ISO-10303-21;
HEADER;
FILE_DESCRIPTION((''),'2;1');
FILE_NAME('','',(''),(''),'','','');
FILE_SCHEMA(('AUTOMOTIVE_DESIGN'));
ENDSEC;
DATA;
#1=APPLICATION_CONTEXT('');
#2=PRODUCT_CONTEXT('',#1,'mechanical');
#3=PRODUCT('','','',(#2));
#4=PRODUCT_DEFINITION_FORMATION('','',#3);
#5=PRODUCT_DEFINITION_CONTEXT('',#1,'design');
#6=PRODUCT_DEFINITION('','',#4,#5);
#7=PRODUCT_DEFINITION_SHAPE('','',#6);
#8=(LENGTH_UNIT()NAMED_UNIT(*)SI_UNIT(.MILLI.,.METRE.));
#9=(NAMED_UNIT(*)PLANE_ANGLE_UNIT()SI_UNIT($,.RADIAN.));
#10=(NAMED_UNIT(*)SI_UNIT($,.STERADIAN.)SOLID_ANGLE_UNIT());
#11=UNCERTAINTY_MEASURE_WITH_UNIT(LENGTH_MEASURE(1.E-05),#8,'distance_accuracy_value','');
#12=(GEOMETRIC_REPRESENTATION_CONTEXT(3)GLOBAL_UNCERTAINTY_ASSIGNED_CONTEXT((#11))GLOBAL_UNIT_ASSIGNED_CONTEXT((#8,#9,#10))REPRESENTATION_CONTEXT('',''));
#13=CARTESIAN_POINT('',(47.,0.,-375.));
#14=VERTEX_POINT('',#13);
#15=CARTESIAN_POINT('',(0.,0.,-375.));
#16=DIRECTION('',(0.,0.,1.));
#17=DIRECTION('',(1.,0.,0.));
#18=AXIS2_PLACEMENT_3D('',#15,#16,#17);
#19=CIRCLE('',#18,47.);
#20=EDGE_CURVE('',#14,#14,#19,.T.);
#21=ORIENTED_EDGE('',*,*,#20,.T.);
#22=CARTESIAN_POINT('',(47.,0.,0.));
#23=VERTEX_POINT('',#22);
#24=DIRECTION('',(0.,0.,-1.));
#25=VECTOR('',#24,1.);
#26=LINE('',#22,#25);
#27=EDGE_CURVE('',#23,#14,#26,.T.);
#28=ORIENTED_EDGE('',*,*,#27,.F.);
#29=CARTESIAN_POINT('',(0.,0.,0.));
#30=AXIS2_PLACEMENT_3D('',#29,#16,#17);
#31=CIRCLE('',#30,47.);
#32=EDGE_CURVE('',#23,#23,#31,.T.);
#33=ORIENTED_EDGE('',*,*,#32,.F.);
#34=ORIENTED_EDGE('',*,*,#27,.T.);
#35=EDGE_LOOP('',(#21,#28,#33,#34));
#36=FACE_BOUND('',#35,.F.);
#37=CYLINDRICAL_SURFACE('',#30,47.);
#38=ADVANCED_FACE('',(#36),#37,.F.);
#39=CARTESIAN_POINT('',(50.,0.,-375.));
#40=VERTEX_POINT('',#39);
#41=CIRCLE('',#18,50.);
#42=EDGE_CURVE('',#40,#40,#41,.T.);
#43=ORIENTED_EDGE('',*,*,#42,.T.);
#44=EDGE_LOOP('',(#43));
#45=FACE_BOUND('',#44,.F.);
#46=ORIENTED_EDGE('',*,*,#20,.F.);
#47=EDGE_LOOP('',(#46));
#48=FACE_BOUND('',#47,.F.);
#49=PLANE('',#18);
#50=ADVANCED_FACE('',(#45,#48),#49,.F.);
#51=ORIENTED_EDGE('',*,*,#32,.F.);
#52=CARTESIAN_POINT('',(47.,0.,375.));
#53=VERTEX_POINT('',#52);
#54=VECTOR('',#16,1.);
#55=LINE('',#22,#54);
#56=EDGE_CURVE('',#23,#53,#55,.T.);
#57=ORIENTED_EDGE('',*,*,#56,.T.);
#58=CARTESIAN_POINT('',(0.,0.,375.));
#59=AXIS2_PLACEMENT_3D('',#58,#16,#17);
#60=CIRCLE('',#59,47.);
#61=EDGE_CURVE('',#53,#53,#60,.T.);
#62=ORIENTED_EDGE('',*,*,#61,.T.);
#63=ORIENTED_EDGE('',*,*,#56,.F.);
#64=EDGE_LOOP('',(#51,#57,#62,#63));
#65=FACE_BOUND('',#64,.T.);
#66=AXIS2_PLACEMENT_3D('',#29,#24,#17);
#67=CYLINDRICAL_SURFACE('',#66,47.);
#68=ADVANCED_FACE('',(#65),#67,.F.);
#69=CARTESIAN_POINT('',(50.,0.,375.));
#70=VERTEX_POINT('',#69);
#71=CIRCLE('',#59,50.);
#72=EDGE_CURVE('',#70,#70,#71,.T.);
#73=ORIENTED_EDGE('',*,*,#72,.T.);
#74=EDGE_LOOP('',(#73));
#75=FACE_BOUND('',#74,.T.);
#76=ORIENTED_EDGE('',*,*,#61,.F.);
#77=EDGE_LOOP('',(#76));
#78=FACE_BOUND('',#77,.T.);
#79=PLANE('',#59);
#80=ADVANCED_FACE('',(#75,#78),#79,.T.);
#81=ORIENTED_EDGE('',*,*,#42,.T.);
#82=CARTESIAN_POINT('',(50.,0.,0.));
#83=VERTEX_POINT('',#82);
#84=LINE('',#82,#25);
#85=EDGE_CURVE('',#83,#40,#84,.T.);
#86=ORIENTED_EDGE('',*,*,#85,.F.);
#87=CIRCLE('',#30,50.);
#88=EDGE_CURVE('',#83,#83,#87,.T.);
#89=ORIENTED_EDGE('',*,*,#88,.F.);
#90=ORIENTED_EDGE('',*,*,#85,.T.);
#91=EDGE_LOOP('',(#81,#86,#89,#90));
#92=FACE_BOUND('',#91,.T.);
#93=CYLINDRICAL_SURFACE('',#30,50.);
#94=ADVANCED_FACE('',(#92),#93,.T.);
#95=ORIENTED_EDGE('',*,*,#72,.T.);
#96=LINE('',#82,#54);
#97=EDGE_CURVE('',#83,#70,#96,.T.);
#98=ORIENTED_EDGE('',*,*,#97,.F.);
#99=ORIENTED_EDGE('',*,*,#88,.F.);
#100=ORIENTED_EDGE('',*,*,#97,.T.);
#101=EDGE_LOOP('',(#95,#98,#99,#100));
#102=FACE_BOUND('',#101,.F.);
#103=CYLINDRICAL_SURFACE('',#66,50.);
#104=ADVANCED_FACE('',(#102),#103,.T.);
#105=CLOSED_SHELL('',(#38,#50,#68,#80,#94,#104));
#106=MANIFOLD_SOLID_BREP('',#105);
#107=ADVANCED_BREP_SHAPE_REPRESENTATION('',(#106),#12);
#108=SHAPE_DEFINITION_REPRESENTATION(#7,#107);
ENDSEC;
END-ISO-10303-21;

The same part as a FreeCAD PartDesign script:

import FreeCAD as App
import Part
import Sketcher
Q = App.Units.Quantity

doc = App.newDocument("Part")
body = doc.addObject("PartDesign::Body", "Body")

# Sketch on XY plane
sketch1 = doc.addObject("Sketcher::SketchObject", "Sketch")
body.addObject(sketch1)
sketch1.AttachmentSupport = (doc.XY_Plane, [""])
sketch1.MapMode = "FlatFace"
sketch1.addGeometry(Part.Circle(App.Vector(0, 0, 0), App.Vector(0, 0, 1), 50), False)
sketch1.addGeometry(Part.Circle(App.Vector(0, 0, 0), App.Vector(0, 0, 1), 47), False)
sketch1.addConstraint(Sketcher.Constraint("Coincident", 0, 3, -1, 1))
sketch1.addConstraint(Sketcher.Constraint("Coincident", 1, 3, -1, 1))
sketch1.addConstraint(Sketcher.Constraint("Diameter", 0, Q("100 mm")))
sketch1.addConstraint(Sketcher.Constraint("Diameter", 1, Q("94 mm")))
pad1 = doc.addObject("PartDesign::Pad", "Pad")
body.addObject(pad1)
pad1.Profile = sketch1
pad1.Length = 750
pad1.Midplane = True

doc.recompute()
